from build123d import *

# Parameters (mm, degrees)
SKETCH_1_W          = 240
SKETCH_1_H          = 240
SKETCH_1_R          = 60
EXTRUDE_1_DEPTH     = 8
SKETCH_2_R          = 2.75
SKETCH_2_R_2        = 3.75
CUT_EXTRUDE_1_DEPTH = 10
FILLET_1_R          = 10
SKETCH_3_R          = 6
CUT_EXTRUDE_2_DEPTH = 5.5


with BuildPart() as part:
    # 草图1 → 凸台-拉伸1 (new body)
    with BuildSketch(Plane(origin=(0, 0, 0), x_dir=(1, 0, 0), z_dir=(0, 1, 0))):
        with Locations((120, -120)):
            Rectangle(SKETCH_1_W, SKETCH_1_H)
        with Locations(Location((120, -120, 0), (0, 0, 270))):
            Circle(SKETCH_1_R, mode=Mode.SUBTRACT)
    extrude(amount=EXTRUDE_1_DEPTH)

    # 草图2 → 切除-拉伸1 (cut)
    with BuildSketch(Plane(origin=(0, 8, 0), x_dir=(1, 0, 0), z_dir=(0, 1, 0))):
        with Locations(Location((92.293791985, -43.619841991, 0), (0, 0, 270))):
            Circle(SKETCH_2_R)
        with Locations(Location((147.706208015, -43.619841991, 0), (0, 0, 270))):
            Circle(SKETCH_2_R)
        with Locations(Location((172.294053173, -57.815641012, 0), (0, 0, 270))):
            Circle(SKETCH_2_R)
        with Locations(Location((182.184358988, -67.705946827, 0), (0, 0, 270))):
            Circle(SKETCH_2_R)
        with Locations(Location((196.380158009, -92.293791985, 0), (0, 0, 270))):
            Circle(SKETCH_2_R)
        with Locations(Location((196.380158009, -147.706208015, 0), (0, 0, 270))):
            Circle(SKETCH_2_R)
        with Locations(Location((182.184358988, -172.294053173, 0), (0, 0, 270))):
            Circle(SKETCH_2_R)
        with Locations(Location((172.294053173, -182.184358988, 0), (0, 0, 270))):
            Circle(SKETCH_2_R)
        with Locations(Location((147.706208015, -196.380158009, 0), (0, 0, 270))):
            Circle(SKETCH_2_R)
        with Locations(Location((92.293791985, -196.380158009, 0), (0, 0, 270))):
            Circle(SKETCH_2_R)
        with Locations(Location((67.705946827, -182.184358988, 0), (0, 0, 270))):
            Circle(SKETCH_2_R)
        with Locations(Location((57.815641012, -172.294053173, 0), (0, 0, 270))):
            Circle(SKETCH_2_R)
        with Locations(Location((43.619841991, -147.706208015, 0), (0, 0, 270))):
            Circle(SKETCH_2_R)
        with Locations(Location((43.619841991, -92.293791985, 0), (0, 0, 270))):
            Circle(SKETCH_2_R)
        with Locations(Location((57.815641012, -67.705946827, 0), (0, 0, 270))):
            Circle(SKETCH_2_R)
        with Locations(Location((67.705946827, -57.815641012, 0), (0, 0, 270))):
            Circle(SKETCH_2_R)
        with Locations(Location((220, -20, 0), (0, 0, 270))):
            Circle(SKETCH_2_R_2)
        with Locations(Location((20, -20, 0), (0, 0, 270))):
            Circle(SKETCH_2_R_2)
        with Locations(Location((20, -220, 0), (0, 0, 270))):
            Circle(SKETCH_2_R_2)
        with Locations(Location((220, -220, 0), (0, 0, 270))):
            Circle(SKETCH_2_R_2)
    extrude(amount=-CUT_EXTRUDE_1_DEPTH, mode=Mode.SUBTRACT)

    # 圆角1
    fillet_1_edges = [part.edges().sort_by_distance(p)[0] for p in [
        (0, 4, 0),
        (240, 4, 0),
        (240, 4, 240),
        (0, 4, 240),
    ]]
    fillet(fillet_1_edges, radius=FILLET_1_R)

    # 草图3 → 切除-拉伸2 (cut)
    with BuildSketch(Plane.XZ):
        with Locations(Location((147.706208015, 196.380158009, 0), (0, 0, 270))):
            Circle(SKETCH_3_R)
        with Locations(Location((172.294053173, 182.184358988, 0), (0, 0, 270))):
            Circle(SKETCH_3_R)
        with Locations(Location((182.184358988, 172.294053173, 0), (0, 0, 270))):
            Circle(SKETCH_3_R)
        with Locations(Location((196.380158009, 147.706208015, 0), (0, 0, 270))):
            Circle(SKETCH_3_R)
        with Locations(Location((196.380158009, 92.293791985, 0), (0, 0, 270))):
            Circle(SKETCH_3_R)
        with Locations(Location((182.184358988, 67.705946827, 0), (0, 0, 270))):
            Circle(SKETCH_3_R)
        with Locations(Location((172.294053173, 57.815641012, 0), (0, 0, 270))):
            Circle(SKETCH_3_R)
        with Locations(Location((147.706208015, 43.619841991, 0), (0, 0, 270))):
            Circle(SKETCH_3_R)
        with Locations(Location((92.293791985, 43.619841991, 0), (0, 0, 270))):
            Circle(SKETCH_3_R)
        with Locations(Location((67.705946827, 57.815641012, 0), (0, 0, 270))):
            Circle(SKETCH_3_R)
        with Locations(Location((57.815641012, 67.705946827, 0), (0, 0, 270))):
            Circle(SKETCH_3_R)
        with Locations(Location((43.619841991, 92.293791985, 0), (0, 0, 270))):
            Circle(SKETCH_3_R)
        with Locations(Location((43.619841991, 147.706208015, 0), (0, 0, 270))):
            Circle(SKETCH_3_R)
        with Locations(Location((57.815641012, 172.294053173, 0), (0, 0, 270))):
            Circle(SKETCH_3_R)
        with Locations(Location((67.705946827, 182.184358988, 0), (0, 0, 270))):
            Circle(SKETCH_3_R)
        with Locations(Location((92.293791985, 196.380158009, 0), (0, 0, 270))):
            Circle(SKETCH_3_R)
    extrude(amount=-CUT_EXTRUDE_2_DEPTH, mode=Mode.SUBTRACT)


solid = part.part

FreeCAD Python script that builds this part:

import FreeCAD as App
import Part
import Sketcher


def edges_at(feature, points):
    """Names of the edges that pass closest to the given points."""
    edges = feature.Shape.Edges
    near = lambda p: min(range(len(edges)), key=lambda i: edges[i].distToShape(Part.Vertex(*p))[0])
    return sorted({f"Edge{near(p) + 1}" for p in points})


def add_polygon(sketch, points):
    """Adds a closed chain of lines whose ends are joined by coincident constraints."""
    first, n = sketch.GeometryCount, len(points)
    for a, b in zip(points, points[1:] + points[:1]):
        sketch.addGeometry(Part.LineSegment(App.Vector(*a, 0), App.Vector(*b, 0)), False)
    for i in range(n):
        sketch.addConstraint(Sketcher.Constraint("Coincident", first + i, 2, first + (i + 1) % n, 1))

doc = App.newDocument("Part")
body = doc.addObject("PartDesign::Body", "Body")

# Sketch on XZ plane
sketch1 = body.newObject("Sketcher::SketchObject", "Sketch")
sketch1.AttachmentSupport = (doc.getObject("XZ_Plane"), [""])
sketch1.MapMode = "FlatFace"
add_polygon(sketch1, [(0, 0), (0, 240), (240, 240), (240, 0)])  # lines 0-3
sketch1.addGeometry(Part.Circle(App.Vector(120, 120, 0), App.Vector(0, 0, 1), 60), False)  # 4
sketch1.addConstraint(Sketcher.Constraint("Vertical", 0))
sketch1.addConstraint(Sketcher.Constraint("Horizontal", 1))
sketch1.addConstraint(Sketcher.Constraint("Vertical", 2))
sketch1.addConstraint(Sketcher.Constraint("Horizontal", 3))
sketch1.addConstraint(Sketcher.Constraint("Coincident", 3, 2, -1, 1))
sketch1.addConstraint(Sketcher.Constraint("Equal", 3, 0))
sketch1.addConstraint(Sketcher.Constraint("Diameter", 4, 120.0))
sketch1.addConstraint(Sketcher.Constraint("DistanceX", 1, 1, 1, 2, 240.0))
sketch1.addConstraint(Sketcher.Constraint("DistanceX", -1, 1, 4, 3, 120.0))
sketch1.addConstraint(Sketcher.Constraint("DistanceY", -1, 1, 4, 3, 120.0))
pad1 = body.newObject("PartDesign::Pad", "Pad")
pad1.Profile = sketch1
pad1.Length = 8
pad1.Reversed = True

# Sketch on XZ plane
sketch2 = body.newObject("Sketcher::SketchObject", "Sketch001")
sketch2.AttachmentSupport = (doc.getObject("XZ_Plane"), [""])
sketch2.MapMode = "FlatFace"
sketch2.AttachmentOffset = App.Placement(App.Vector(0, 0, -8), App.Rotation())
sketch2.addGeometry(Part.Circle(App.Vector(92.3, 43.6, 0), App.Vector(0, 0, 1), 2.8), False)
sketch2.addGeometry(Part.Circle(App.Vector(147.7, 43.6, 0), App.Vector(0, 0, 1), 2.8), False)
sketch2.addGeometry(Part.Circle(App.Vector(172.3, 57.8, 0), App.Vector(0, 0, 1), 2.8), False)
sketch2.addGeometry(Part.Circle(App.Vector(182.2, 67.7, 0), App.Vector(0, 0, 1), 2.8), False)
sketch2.addGeometry(Part.Circle(App.Vector(196.4, 92.3, 0), App.Vector(0, 0, 1), 2.8), False)
sketch2.addGeometry(Part.Circle(App.Vector(196.4, 147.7, 0), App.Vector(0, 0, 1), 2.8), False)
sketch2.addGeometry(Part.Circle(App.Vector(182.2, 172.3, 0), App.Vector(0, 0, 1), 2.8), False)
sketch2.addGeometry(Part.Circle(App.Vector(172.3, 182.2, 0), App.Vector(0, 0, 1), 2.8), False)
sketch2.addGeometry(Part.Circle(App.Vector(147.7, 196.4, 0), App.Vector(0, 0, 1), 2.8), False)
sketch2.addGeometry(Part.Circle(App.Vector(92.3, 196.4, 0), App.Vector(0, 0, 1), 2.8), False)
sketch2.addGeometry(Part.Circle(App.Vector(67.7, 182.2, 0), App.Vector(0, 0, 1), 2.8), False)
sketch2.addGeometry(Part.Circle(App.Vector(57.8, 172.3, 0), App.Vector(0, 0, 1), 2.8), False)
sketch2.addGeometry(Part.Circle(App.Vector(43.6, 147.7, 0), App.Vector(0, 0, 1), 2.8), False)
sketch2.addGeometry(Part.Circle(App.Vector(43.6, 92.3, 0), App.Vector(0, 0, 1), 2.8), False)
sketch2.addGeometry(Part.Circle(App.Vector(57.8, 67.7, 0), App.Vector(0, 0, 1), 2.8), False)
sketch2.addGeometry(Part.Circle(App.Vector(67.7, 57.8, 0), App.Vector(0, 0, 1), 2.8), False)
sketch2.addGeometry(Part.Circle(App.Vector(220, 20, 0), App.Vector(0, 0, 1), 3.8), False)
sketch2.addGeometry(Part.Circle(App.Vector(20, 20, 0), App.Vector(0, 0, 1), 3.8), False)
sketch2.addGeometry(Part.Circle(App.Vector(20, 220, 0), App.Vector(0, 0, 1), 3.8), False)
sketch2.addGeometry(Part.Circle(App.Vector(220, 220, 0), App.Vector(0, 0, 1), 3.8), False)
sketch2.addConstraint(Sketcher.Constraint("Equal", 0, 1))
sketch2.addConstraint(Sketcher.Constraint("Equal", 1, 2))
sketch2.addConstraint(Sketcher.Constraint("Equal", 2, 3))
sketch2.addConstraint(Sketcher.Constraint("Equal", 3, 4))
sketch2.addConstraint(Sketcher.Constraint("Equal", 4, 5))
sketch2.addConstraint(Sketcher.Constraint("Equal", 5, 6))
sketch2.addConstraint(Sketcher.Constraint("Equal", 6, 7))
sketch2.addConstraint(Sketcher.Constraint("Equal", 7, 8))
sketch2.addConstraint(Sketcher.Constraint("Equal", 8, 9))
sketch2.addConstraint(Sketcher.Constraint("Equal", 9, 10))
sketch2.addConstraint(Sketcher.Constraint("Equal", 10, 11))
sketch2.addConstraint(Sketcher.Constraint("Equal", 11, 12))
sketch2.addConstraint(Sketcher.Constraint("Equal", 12, 13))
sketch2.addConstraint(Sketcher.Constraint("Equal", 13, 14))
sketch2.addConstraint(Sketcher.Constraint("Equal", 14, 15))
sketch2.addConstraint(Sketcher.Constraint("Equal", 16, 17))
sketch2.addConstraint(Sketcher.Constraint("Equal", 17, 18))
sketch2.addConstraint(Sketcher.Constraint("Equal", 18, 19))
sketch2.addConstraint(Sketcher.Constraint("Horizontal", 0, 3, 1, 3))
sketch2.addConstraint(Sketcher.Constraint("Horizontal", 8, 3, 9, 3))
sketch2.addConstraint(Sketcher.Constraint("Horizontal", 7, 3, 10, 3))
sketch2.addConstraint(Sketcher.Constraint("Horizontal", 6, 3, 11, 3))
sketch2.addConstraint(Sketcher.Constraint("Horizontal", 5, 3, 12, 3))
sketch2.addConstraint(Sketcher.Constraint("Horizontal", 4, 3, 13, 3))
sketch2.addConstraint(Sketcher.Constraint("Horizontal", 3, 3, 14, 3))
sketch2.addConstraint(Sketcher.Constraint("Horizontal", 2, 3, 15, 3))
sketch2.addConstraint(Sketcher.Constraint("Horizontal", 16, 3, 17, 3))
sketch2.addConstraint(Sketcher.Constraint("Horizontal", 18, 3, 19, 3))
sketch2.addConstraint(Sketcher.Constraint("Vertical", 4, 3, 5, 3))
sketch2.addConstraint(Sketcher.Constraint("Vertical", 3, 3, 6, 3))
sketch2.addConstraint(Sketcher.Constraint("Vertical", 2, 3, 7, 3))
sketch2.addConstraint(Sketcher.Constraint("Vertical", 1, 3, 8, 3))
sketch2.addConstraint(Sketcher.Constraint("Vertical", 0, 3, 9, 3))
sketch2.addConstraint(Sketcher.Constraint("Vertical", 12, 3, 13, 3))
sketch2.addConstraint(Sketcher.Constraint("Vertical", 11, 3, 14, 3))
sketch2.addConstraint(Sketcher.Constraint("Vertical", 10, 3, 15, 3))
sketch2.addConstraint(Sketcher.Constraint("Vertical", 17, 3, 18, 3))
sketch2.addConstraint(Sketcher.Constraint("Vertical", 16, 3, 19, 3))
sketch2.addConstraint(Sketcher.Constraint("Diameter", 0, 5.5))
sketch2.addConstraint(Sketcher.Constraint("Diameter", 16, 7.5))
sketch2.addConstraint(Sketcher.Constraint("DistanceX", -1, 1, 16, 3, 220.0))
sketch2.addConstraint(Sketcher.Constraint("DistanceY", -1, 1, 16, 3, 20.0))
sketch2.addConstraint(Sketcher.Constraint("DistanceX", -1, 1, 17, 3, 20.0))
sketch2.addConstraint(Sketcher.Constraint("DistanceY", -1, 1, 18, 3, 220.0))
sketch2.addConstraint(Sketcher.Constraint("DistanceY", 1, 3, 2, 3, 14.195799))
sketch2.addConstraint(Sketcher.Constraint("DistanceX", 3, 3, 4, 3, 14.195799))
sketch2.addConstraint(Sketcher.Constraint("DistanceY", 7, 3, 8, 3, 14.195799))
sketch2.addConstraint(Sketcher.Constraint("DistanceX", 12, 3, 11, 3, 14.195799))
sketch2.addConstraint(Sketcher.Constraint("DistanceX", -1, 1, 0, 3, 92.293792))
sketch2.addConstraint(Sketcher.Constraint("DistanceY", -1, 1, 0, 3, 43.619842))
sketch2.addConstraint(Sketcher.Constraint("DistanceX", -1, 1, 1, 3, 147.706208))
sketch2.addConstraint(Sketcher.Constraint("DistanceX", -1, 1, 3, 3, 182.184359))
sketch2.addConstraint(Sketcher.Constraint("DistanceY", -1, 1, 4, 3, 92.293792))
sketch2.addConstraint(Sketcher.Constraint("DistanceY", -1, 1, 5, 3, 147.706208))
sketch2.addConstraint(Sketcher.Constraint("DistanceY", -1, 1, 7, 3, 182.184359))
sketch2.addConstraint(Sketcher.Constraint("DistanceX", -1, 1, 11, 3, 57.815641))
sketch2.addConstraint(Sketcher.Constraint("DistanceX", 0, 3, 2, 3, 80.000261))
sketch2.addConstraint(Sketcher.Constraint("DistanceY", 3, 3, 5, 3, 80.000261))
sketch2.addConstraint(Sketcher.Constraint("DistanceY", 4, 3, 6, 3, 80.000261))
sketch2.addConstraint(Sketcher.Constraint("DistanceX", 10, 3, 8, 3, 80.000261))
pocket1 = body.newObject("PartDesign::Pocket", "Pocket")
pocket1.Profile = sketch2
pocket1.Length = 10
pocket1.Reversed = True
doc.recompute()

fillet = body.newObject("PartDesign::Fillet", "Fillet")
fillet.Base = (pocket1, edges_at(pocket1, [
    (0, 4, 0),
    (240, 4, 0),
    (240, 4, 240),
    (0, 4, 240),
]))
fillet.Radius = 10

# Sketch on XZ plane
sketch3 = body.newObject("Sketcher::SketchObject", "Sketch002")
sketch3.AttachmentSupport = (doc.getObject("XZ_Plane"), [""])
sketch3.MapMode = "FlatFace"
sketch3.addGeometry(Part.Circle(App.Vector(148, 196, 0), App.Vector(0, 0, 1), 6), False)
sketch3.addGeometry(Part.Circle(App.Vector(172, 182, 0), App.Vector(0, 0, 1), 6), False)
sketch3.addGeometry(Part.Circle(App.Vector(182, 172, 0), App.Vector(0, 0, 1), 6), False)
sketch3.addGeometry(Part.Circle(App.Vector(196, 148, 0), App.Vector(0, 0, 1), 6), False)
sketch3.addGeometry(Part.Circle(App.Vector(196, 92, 0), App.Vector(0, 0, 1), 6), False)
sketch3.addGeometry(Part.Circle(App.Vector(182, 68, 0), App.Vector(0, 0, 1), 6), False)
sketch3.addGeometry(Part.Circle(App.Vector(172, 58, 0), App.Vector(0, 0, 1), 6), False)
sketch3.addGeometry(Part.Circle(App.Vector(148, 44, 0), App.Vector(0, 0, 1), 6), False)
sketch3.addGeometry(Part.Circle(App.Vector(92, 44, 0), App.Vector(0, 0, 1), 6), False)
sketch3.addGeometry(Part.Circle(App.Vector(68, 58, 0), App.Vector(0, 0, 1), 6), False)
sketch3.addGeometry(Part.Circle(App.Vector(58, 68, 0), App.Vector(0, 0, 1), 6), False)
sketch3.addGeometry(Part.Circle(App.Vector(44, 92, 0), App.Vector(0, 0, 1), 6), False)
sketch3.addGeometry(Part.Circle(App.Vector(44, 148, 0), App.Vector(0, 0, 1), 6), False)
sketch3.addGeometry(Part.Circle(App.Vector(58, 172, 0), App.Vector(0, 0, 1), 6), False)
sketch3.addGeometry(Part.Circle(App.Vector(68, 182, 0), App.Vector(0, 0, 1), 6), False)
sketch3.addGeometry(Part.Circle(App.Vector(92, 196, 0), App.Vector(0, 0, 1), 6), False)
sketch3.addConstraint(Sketcher.Constraint("Equal", 0, 1))
sketch3.addConstraint(Sketcher.Constraint("Equal", 1, 2))
sketch3.addConstraint(Sketcher.Constraint("Equal", 2, 3))
sketch3.addConstraint(Sketcher.Constraint("Equal", 3, 4))
sketch3.addConstraint(Sketcher.Constraint("Equal", 4, 5))
sketch3.addConstraint(Sketcher.Constraint("Equal", 5, 6))
sketch3.addConstraint(Sketcher.Constraint("Equal", 6, 7))
sketch3.addConstraint(Sketcher.Constraint("Equal", 7, 8))
sketch3.addConstraint(Sketcher.Constraint("Equal", 8, 9))
sketch3.addConstraint(Sketcher.Constraint("Equal", 9, 10))
sketch3.addConstraint(Sketcher.Constraint("Equal", 10, 11))
sketch3.addConstraint(Sketcher.Constraint("Equal", 11, 12))
sketch3.addConstraint(Sketcher.Constraint("Equal", 12, 13))
sketch3.addConstraint(Sketcher.Constraint("Equal", 13, 14))
sketch3.addConstraint(Sketcher.Constraint("Equal", 14, 15))
sketch3.addConstraint(Sketcher.Constraint("Horizontal", 7, 3, 8, 3))
sketch3.addConstraint(Sketcher.Constraint("Horizontal", 6, 3, 9, 3))
sketch3.addConstraint(Sketcher.Constraint("Horizontal", 5, 3, 10, 3))
sketch3.addConstraint(Sketcher.Constraint("Horizontal", 4, 3, 11, 3))
sketch3.addConstraint(Sketcher.Constraint("Horizontal", 3, 3, 12, 3))
sketch3.addConstraint(Sketcher.Constraint("Horizontal", 2, 3, 13, 3))
sketch3.addConstraint(Sketcher.Constraint("Horizontal", 1, 3, 14, 3))
sketch3.addConstraint(Sketcher.Constraint("Horizontal", 0, 3, 15, 3))
sketch3.addConstraint(Sketcher.Constraint("Vertical", 3, 3, 4, 3))
sketch3.addConstraint(Sketcher.Constraint("Vertical", 2, 3, 5, 3))
sketch3.addConstraint(Sketcher.Constraint("Vertical", 1, 3, 6, 3))
sketch3.addConstraint(Sketcher.Constraint("Vertical", 0, 3, 7, 3))
sketch3.addConstraint(Sketcher.Constraint("Vertical", 11, 3, 12, 3))
sketch3.addConstraint(Sketcher.Constraint("Vertical", 10, 3, 13, 3))
sketch3.addConstraint(Sketcher.Constraint("Vertical", 9, 3, 14, 3))
sketch3.addConstraint(Sketcher.Constraint("Vertical", 8, 3, 15, 3))
sketch3.addConstraint(Sketcher.Constraint("Diameter", 0, 12.0))
sketch3.addConstraint(Sketcher.Constraint("DistanceY", 1, 3, 0, 3, 14.195799))
sketch3.addConstraint(Sketcher.Constraint("DistanceX", 2, 3, 3, 3, 14.195799))
sketch3.addConstraint(Sketcher.Constraint("DistanceY", 7, 3, 6, 3, 14.195799))
sketch3.addConstraint(Sketcher.Constraint("DistanceX", 11, 3, 10, 3, 14.195799))
sketch3.addConstraint(Sketcher.Constraint("DistanceX", -1, 1, 0, 3, 147.706208))
sketch3.addConstraint(Sketcher.Constraint("DistanceY", -1, 1, 0, 3, 196.380158))
sketch3.addConstraint(Sketcher.Constraint("DistanceX", -1, 1, 2, 3, 182.184359))
sketch3.addConstraint(Sketcher.Constraint("DistanceY", -1, 1, 3, 3, 147.706208))
sketch3.addConstraint(Sketcher.Constraint("DistanceY", -1, 1, 4, 3, 92.293792))
sketch3.addConstraint(Sketcher.Constraint("DistanceY", -1, 1, 6, 3, 57.815641))
sketch3.addConstraint(Sketcher.Constraint("DistanceX", -1, 1, 8, 3, 92.293792))
sketch3.addConstraint(Sketcher.Constraint("DistanceX", -1, 1, 10, 3, 57.815641))
sketch3.addConstraint(Sketcher.Constraint("DistanceY", 4, 3, 2, 3, 80.000261))
sketch3.addConstraint(Sketcher.Constraint("DistanceY", 5, 3, 3, 3, 80.000261))
sketch3.addConstraint(Sketcher.Constraint("DistanceX", 8, 3, 6, 3, 80.000261))
sketch3.addConstraint(Sketcher.Constraint("DistanceX", 9, 3, 7, 3, 80.000261))
pocket2 = body.newObject("PartDesign::Pocket", "Pocket001")
pocket2.Profile = sketch3
pocket2.Length = 5.5

doc.recompute()
